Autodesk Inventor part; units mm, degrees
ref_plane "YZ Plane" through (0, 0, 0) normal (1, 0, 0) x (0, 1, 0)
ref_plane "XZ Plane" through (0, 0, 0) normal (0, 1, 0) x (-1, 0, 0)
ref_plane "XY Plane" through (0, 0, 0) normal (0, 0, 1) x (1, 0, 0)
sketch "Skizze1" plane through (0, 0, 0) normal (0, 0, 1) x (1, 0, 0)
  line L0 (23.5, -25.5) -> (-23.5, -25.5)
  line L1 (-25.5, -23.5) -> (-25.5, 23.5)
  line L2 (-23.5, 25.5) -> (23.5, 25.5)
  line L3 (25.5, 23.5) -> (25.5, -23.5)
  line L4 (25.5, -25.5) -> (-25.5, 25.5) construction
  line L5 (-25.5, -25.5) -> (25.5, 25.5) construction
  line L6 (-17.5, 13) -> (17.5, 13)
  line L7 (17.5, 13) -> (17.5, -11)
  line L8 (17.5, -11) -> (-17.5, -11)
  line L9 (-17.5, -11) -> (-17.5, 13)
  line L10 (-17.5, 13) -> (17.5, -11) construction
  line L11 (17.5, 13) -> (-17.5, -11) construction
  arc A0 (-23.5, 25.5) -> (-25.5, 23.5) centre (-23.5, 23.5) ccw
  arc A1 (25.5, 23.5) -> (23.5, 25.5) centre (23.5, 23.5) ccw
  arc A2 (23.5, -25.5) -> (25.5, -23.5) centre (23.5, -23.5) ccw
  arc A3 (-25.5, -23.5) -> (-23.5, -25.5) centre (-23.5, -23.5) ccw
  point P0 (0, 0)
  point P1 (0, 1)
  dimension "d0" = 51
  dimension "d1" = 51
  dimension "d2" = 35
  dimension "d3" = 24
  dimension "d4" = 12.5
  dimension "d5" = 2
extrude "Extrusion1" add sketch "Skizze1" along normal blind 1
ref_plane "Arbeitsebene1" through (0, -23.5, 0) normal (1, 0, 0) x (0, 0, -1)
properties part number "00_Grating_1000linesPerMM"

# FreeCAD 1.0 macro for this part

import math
import FreeCAD as App
import Part
import Sketcher
from FreeCAD import Vector
Q = App.Units.Quantity


def add_polygon(sketch, points):
    """Adds a closed chain of lines whose ends are joined by coincident constraints."""
    first, n = sketch.GeometryCount, len(points)
    for a, b in zip(points, points[1:] + points[:1]):
        sketch.addGeometry(Part.LineSegment(App.Vector(*a, 0), App.Vector(*b, 0)), False)
    for i in range(n):
        sketch.addConstraint(Sketcher.Constraint("Coincident", first + i, 2, first + (i + 1) % n, 1))

doc = App.newDocument("Part")
body = doc.addObject("PartDesign::Body", "Body")

# Sketch on XY plane
sketch1 = body.newObject("Sketcher::SketchObject", "Sketch")
sketch1.AttachmentSupport = (doc.getObject("XY_Plane"), [""])
sketch1.MapMode = "FlatFace"
sketch1.addGeometry(Part.LineSegment(Vector(-23.5, -25.5, 0), Vector(23.5, -25.5, 0)), False)  # 0
sketch1.addGeometry(Part.ArcOfCircle(Part.Circle(Vector(23.5, -23.5, 0), Vector(0, 0, 1), 2), math.radians(-90), math.radians(0)), False)  # 1
sketch1.addGeometry(Part.LineSegment(Vector(25.5, -23.5, 0), Vector(25.5, 23.5, 0)), False)  # 2
sketch1.addGeometry(Part.ArcOfCircle(Part.Circle(Vector(23.5, 23.5, 0), Vector(0, 0, 1), 2), math.radians(0), math.radians(90)), False)  # 3
sketch1.addGeometry(Part.LineSegment(Vector(23.5, 25.5, 0), Vector(-23.5, 25.5, 0)), False)  # 4
sketch1.addGeometry(Part.ArcOfCircle(Part.Circle(Vector(-23.5, 23.5, 0), Vector(0, 0, 1), 2), math.radians(90), math.radians(180)), False)  # 5
sketch1.addGeometry(Part.LineSegment(Vector(-25.5, 23.5, 0), Vector(-25.5, -23.5, 0)), False)  # 6
sketch1.addGeometry(Part.ArcOfCircle(Part.Circle(Vector(-23.5, -23.5, 0), Vector(0, 0, 1), 2), math.radians(180), math.radians(270)), False)  # 7
add_polygon(sketch1, [(-17.5, -11), (-17.5, 13), (17.5, 13), (17.5, -11)])  # lines 8-11
sketch1.addConstraint(Sketcher.Constraint("Tangent", 0, 2, 1, 1))
sketch1.addConstraint(Sketcher.Constraint("Tangent", 1, 2, 2, 1))
sketch1.addConstraint(Sketcher.Constraint("Tangent", 2, 2, 3, 1))
sketch1.addConstraint(Sketcher.Constraint("Tangent", 3, 2, 4, 1))
sketch1.addConstraint(Sketcher.Constraint("Tangent", 4, 2, 5, 1))
sketch1.addConstraint(Sketcher.Constraint("Tangent", 5, 2, 6, 1))
sketch1.addConstraint(Sketcher.Constraint("Tangent", 6, 2, 7, 1))
sketch1.addConstraint(Sketcher.Constraint("Tangent", 7, 2, 0, 1))
sketch1.addConstraint(Sketcher.Constraint("Horizontal", 0))
sketch1.addConstraint(Sketcher.Constraint("Vertical", 2))
sketch1.addConstraint(Sketcher.Constraint("Horizontal", 4))
sketch1.addConstraint(Sketcher.Constraint("Vertical", 6))
sketch1.addConstraint(Sketcher.Constraint("Vertical", 8))
sketch1.addConstraint(Sketcher.Constraint("Horizontal", 9))
sketch1.addConstraint(Sketcher.Constraint("Vertical", 10))
sketch1.addConstraint(Sketcher.Constraint("Horizontal", 11))
sketch1.addConstraint(Sketcher.Constraint("Equal", 1, 3))
sketch1.addConstraint(Sketcher.Constraint("Equal", 3, 5))
sketch1.addConstraint(Sketcher.Constraint("Equal", 5, 7))
sketch1.addConstraint(Sketcher.Constraint("Symmetric", 1, 3, 5, 3, -1, 1))
sketch1.addConstraint(Sketcher.Constraint("Equal", 4, 2))
sketch1.addConstraint(Sketcher.Constraint("Radius", 1, Q("2 mm")))
sketch1.addConstraint(Sketcher.Constraint("DistanceX", 9, 1, 9, 2, Q("35 mm")))
sketch1.addConstraint(Sketcher.Constraint("DistanceY", 8, 1, 8, 2, Q("24 mm")))
sketch1.addConstraint(Sketcher.Constraint("DistanceY", 8, 2, 4, 2, Q("12.5 mm")))
sketch1.addConstraint(Sketcher.Constraint("DistanceY", 1, 3, 10, 2, Q("12.5 mm")))
sketch1.addConstraint(Sketcher.Constraint("DistanceX", 5, 3, 8, 2, Q("6 mm")))
pad1 = body.newObject("PartDesign::Pad", "Pad")
pad1.Profile = sketch1
pad1.Length = 1

doc.recompute()
